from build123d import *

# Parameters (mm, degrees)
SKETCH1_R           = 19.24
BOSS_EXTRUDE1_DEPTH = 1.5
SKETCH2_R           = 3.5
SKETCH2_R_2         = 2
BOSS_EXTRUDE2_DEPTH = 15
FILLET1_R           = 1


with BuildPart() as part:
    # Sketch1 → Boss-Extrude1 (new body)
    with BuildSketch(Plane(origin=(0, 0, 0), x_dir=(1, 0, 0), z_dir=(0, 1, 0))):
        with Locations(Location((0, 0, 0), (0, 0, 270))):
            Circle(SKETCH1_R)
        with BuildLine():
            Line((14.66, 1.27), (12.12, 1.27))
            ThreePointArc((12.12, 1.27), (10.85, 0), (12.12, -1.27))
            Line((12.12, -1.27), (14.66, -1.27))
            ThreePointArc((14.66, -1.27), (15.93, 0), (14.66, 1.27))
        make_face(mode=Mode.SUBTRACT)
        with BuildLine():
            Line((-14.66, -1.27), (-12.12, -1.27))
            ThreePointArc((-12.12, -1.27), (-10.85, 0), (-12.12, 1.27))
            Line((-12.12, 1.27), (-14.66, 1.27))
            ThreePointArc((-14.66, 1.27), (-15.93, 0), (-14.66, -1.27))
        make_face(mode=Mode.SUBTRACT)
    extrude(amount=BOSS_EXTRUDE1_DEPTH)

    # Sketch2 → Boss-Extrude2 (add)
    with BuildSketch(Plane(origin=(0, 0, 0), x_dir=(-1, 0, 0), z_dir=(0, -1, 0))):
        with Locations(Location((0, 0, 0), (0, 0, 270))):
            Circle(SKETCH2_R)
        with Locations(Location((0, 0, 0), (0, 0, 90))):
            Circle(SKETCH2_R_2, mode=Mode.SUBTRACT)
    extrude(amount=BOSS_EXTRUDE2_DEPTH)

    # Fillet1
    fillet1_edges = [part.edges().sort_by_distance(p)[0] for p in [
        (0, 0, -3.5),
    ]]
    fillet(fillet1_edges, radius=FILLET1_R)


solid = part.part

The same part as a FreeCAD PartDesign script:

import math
import FreeCAD as App
import Part
import Sketcher


def edges_at(feature, points):
    """Names of the edges that pass closest to the given points."""
    edges = feature.Shape.Edges
    near = lambda p: min(range(len(edges)), key=lambda i: edges[i].distToShape(Part.Vertex(*p))[0])
    return sorted({f"Edge{near(p) + 1}" for p in points})

doc = App.newDocument("Part")
body = doc.addObject("PartDesign::Body", "Body")

sketch1 = body.newObject("Sketcher::SketchObject", "Sketch")
sketch1.AttachmentSupport = (doc.getObject("XZ_Plane"), [""])
sketch1.MapMode = "FlatFace"
sketch1.addGeometry([
    Part.Circle(App.Vector(0, 0, 0), App.Vector(0, 0, 1), 19.2),
    Part.LineSegment(App.Vector(-12.1, 1.3, 0), App.Vector(-14.7, 1.3, 0)),
    Part.ArcOfCircle(Part.Circle(App.Vector(-14.7, 0, 0), App.Vector(0, 0, 1), 1.3), math.radians(90), math.radians(270)),
    Part.LineSegment(App.Vector(-14.7, -1.3, 0), App.Vector(-12.1, -1.3, 0)),
    Part.ArcOfCircle(Part.Circle(App.Vector(-12.1, 0, 0), App.Vector(0, 0, 1), 1.3), math.radians(-90), math.radians(90)),
    Part.LineSegment(App.Vector(12.1, -1.3, 0), App.Vector(14.7, -1.3, 0)),
    Part.ArcOfCircle(Part.Circle(App.Vector(14.7, 0, 0), App.Vector(0, 0, 1), 1.3), math.radians(-90), math.radians(90)),
    Part.LineSegment(App.Vector(14.7, 1.3, 0), App.Vector(12.1, 1.3, 0)),
    Part.ArcOfCircle(Part.Circle(App.Vector(12.1, 0, 0), App.Vector(0, 0, 1), 1.3), math.radians(90), math.radians(270)),
], False)
sketch1.addConstraint([
    Sketcher.Constraint("Tangent", 1, 2, 2, 1),
    Sketcher.Constraint("Tangent", 2, 2, 3, 1),
    Sketcher.Constraint("Tangent", 3, 2, 4, 1),
    Sketcher.Constraint("Tangent", 4, 2, 1, 1),
    Sketcher.Constraint("Tangent", 5, 2, 6, 1),
    Sketcher.Constraint("Tangent", 6, 2, 7, 1),
    Sketcher.Constraint("Tangent", 7, 2, 8, 1),
    Sketcher.Constraint("Tangent", 8, 2, 5, 1),
    Sketcher.Constraint("Horizontal", 1),
    Sketcher.Constraint("Horizontal", 3),
    Sketcher.Constraint("Horizontal", 5),
    Sketcher.Constraint("Horizontal", 7),
    Sketcher.Constraint("Coincident", 0, 3, -1, 1),
    Sketcher.Constraint("Equal", 4, 6),
    Sketcher.Constraint("Symmetric", 2, 3, 6, 3, -1, 1),
    Sketcher.Constraint("Symmetric", 4, 3, 8, 3, -2),
    Sketcher.Constraint("Diameter", 0, 38.48),
    Sketcher.Constraint("Radius", 2, 1.27),
    Sketcher.Constraint("DistanceX", 1, 2, 1, 1, 2.54),
    Sketcher.Constraint("DistanceX", 2, 3, -1, 1, 14.66),
])
pad1 = body.newObject("PartDesign::Pad", "Pad")
pad1.Profile = sketch1
pad1.Length = 1.5
pad1.Reversed = True

sketch2 = body.newObject("Sketcher::SketchObject", "Sketch001")
sketch2.AttachmentSupport = (doc.getObject("XZ_Plane"), [""])
sketch2.MapMode = "FlatFace"
sketch2.addGeometry([
    Part.Circle(App.Vector(0, 0, 0), App.Vector(0, 0, 1), 3.5),
    Part.Circle(App.Vector(0, 0, 0), App.Vector(0, 0, 1), 2),
], False)
sketch2.addConstraint([
    Sketcher.Constraint("Coincident", 0, 3, -1, 1),
    Sketcher.Constraint("Coincident", 1, 3, -1, 1),
    Sketcher.Constraint("Diameter", 0, 7.0),
    Sketcher.Constraint("Diameter", 1, 4.0),
])
pad2 = body.newObject("PartDesign::Pad", "Pad001")
pad2.Profile = sketch2
pad2.Length = 15
doc.recompute()

fillet = body.newObject("PartDesign::Fillet", "Fillet")
fillet.Base = (pad2, edges_at(pad2, [(0, 0, -3.5)]))
fillet.Radius = 1

doc.recompute()
